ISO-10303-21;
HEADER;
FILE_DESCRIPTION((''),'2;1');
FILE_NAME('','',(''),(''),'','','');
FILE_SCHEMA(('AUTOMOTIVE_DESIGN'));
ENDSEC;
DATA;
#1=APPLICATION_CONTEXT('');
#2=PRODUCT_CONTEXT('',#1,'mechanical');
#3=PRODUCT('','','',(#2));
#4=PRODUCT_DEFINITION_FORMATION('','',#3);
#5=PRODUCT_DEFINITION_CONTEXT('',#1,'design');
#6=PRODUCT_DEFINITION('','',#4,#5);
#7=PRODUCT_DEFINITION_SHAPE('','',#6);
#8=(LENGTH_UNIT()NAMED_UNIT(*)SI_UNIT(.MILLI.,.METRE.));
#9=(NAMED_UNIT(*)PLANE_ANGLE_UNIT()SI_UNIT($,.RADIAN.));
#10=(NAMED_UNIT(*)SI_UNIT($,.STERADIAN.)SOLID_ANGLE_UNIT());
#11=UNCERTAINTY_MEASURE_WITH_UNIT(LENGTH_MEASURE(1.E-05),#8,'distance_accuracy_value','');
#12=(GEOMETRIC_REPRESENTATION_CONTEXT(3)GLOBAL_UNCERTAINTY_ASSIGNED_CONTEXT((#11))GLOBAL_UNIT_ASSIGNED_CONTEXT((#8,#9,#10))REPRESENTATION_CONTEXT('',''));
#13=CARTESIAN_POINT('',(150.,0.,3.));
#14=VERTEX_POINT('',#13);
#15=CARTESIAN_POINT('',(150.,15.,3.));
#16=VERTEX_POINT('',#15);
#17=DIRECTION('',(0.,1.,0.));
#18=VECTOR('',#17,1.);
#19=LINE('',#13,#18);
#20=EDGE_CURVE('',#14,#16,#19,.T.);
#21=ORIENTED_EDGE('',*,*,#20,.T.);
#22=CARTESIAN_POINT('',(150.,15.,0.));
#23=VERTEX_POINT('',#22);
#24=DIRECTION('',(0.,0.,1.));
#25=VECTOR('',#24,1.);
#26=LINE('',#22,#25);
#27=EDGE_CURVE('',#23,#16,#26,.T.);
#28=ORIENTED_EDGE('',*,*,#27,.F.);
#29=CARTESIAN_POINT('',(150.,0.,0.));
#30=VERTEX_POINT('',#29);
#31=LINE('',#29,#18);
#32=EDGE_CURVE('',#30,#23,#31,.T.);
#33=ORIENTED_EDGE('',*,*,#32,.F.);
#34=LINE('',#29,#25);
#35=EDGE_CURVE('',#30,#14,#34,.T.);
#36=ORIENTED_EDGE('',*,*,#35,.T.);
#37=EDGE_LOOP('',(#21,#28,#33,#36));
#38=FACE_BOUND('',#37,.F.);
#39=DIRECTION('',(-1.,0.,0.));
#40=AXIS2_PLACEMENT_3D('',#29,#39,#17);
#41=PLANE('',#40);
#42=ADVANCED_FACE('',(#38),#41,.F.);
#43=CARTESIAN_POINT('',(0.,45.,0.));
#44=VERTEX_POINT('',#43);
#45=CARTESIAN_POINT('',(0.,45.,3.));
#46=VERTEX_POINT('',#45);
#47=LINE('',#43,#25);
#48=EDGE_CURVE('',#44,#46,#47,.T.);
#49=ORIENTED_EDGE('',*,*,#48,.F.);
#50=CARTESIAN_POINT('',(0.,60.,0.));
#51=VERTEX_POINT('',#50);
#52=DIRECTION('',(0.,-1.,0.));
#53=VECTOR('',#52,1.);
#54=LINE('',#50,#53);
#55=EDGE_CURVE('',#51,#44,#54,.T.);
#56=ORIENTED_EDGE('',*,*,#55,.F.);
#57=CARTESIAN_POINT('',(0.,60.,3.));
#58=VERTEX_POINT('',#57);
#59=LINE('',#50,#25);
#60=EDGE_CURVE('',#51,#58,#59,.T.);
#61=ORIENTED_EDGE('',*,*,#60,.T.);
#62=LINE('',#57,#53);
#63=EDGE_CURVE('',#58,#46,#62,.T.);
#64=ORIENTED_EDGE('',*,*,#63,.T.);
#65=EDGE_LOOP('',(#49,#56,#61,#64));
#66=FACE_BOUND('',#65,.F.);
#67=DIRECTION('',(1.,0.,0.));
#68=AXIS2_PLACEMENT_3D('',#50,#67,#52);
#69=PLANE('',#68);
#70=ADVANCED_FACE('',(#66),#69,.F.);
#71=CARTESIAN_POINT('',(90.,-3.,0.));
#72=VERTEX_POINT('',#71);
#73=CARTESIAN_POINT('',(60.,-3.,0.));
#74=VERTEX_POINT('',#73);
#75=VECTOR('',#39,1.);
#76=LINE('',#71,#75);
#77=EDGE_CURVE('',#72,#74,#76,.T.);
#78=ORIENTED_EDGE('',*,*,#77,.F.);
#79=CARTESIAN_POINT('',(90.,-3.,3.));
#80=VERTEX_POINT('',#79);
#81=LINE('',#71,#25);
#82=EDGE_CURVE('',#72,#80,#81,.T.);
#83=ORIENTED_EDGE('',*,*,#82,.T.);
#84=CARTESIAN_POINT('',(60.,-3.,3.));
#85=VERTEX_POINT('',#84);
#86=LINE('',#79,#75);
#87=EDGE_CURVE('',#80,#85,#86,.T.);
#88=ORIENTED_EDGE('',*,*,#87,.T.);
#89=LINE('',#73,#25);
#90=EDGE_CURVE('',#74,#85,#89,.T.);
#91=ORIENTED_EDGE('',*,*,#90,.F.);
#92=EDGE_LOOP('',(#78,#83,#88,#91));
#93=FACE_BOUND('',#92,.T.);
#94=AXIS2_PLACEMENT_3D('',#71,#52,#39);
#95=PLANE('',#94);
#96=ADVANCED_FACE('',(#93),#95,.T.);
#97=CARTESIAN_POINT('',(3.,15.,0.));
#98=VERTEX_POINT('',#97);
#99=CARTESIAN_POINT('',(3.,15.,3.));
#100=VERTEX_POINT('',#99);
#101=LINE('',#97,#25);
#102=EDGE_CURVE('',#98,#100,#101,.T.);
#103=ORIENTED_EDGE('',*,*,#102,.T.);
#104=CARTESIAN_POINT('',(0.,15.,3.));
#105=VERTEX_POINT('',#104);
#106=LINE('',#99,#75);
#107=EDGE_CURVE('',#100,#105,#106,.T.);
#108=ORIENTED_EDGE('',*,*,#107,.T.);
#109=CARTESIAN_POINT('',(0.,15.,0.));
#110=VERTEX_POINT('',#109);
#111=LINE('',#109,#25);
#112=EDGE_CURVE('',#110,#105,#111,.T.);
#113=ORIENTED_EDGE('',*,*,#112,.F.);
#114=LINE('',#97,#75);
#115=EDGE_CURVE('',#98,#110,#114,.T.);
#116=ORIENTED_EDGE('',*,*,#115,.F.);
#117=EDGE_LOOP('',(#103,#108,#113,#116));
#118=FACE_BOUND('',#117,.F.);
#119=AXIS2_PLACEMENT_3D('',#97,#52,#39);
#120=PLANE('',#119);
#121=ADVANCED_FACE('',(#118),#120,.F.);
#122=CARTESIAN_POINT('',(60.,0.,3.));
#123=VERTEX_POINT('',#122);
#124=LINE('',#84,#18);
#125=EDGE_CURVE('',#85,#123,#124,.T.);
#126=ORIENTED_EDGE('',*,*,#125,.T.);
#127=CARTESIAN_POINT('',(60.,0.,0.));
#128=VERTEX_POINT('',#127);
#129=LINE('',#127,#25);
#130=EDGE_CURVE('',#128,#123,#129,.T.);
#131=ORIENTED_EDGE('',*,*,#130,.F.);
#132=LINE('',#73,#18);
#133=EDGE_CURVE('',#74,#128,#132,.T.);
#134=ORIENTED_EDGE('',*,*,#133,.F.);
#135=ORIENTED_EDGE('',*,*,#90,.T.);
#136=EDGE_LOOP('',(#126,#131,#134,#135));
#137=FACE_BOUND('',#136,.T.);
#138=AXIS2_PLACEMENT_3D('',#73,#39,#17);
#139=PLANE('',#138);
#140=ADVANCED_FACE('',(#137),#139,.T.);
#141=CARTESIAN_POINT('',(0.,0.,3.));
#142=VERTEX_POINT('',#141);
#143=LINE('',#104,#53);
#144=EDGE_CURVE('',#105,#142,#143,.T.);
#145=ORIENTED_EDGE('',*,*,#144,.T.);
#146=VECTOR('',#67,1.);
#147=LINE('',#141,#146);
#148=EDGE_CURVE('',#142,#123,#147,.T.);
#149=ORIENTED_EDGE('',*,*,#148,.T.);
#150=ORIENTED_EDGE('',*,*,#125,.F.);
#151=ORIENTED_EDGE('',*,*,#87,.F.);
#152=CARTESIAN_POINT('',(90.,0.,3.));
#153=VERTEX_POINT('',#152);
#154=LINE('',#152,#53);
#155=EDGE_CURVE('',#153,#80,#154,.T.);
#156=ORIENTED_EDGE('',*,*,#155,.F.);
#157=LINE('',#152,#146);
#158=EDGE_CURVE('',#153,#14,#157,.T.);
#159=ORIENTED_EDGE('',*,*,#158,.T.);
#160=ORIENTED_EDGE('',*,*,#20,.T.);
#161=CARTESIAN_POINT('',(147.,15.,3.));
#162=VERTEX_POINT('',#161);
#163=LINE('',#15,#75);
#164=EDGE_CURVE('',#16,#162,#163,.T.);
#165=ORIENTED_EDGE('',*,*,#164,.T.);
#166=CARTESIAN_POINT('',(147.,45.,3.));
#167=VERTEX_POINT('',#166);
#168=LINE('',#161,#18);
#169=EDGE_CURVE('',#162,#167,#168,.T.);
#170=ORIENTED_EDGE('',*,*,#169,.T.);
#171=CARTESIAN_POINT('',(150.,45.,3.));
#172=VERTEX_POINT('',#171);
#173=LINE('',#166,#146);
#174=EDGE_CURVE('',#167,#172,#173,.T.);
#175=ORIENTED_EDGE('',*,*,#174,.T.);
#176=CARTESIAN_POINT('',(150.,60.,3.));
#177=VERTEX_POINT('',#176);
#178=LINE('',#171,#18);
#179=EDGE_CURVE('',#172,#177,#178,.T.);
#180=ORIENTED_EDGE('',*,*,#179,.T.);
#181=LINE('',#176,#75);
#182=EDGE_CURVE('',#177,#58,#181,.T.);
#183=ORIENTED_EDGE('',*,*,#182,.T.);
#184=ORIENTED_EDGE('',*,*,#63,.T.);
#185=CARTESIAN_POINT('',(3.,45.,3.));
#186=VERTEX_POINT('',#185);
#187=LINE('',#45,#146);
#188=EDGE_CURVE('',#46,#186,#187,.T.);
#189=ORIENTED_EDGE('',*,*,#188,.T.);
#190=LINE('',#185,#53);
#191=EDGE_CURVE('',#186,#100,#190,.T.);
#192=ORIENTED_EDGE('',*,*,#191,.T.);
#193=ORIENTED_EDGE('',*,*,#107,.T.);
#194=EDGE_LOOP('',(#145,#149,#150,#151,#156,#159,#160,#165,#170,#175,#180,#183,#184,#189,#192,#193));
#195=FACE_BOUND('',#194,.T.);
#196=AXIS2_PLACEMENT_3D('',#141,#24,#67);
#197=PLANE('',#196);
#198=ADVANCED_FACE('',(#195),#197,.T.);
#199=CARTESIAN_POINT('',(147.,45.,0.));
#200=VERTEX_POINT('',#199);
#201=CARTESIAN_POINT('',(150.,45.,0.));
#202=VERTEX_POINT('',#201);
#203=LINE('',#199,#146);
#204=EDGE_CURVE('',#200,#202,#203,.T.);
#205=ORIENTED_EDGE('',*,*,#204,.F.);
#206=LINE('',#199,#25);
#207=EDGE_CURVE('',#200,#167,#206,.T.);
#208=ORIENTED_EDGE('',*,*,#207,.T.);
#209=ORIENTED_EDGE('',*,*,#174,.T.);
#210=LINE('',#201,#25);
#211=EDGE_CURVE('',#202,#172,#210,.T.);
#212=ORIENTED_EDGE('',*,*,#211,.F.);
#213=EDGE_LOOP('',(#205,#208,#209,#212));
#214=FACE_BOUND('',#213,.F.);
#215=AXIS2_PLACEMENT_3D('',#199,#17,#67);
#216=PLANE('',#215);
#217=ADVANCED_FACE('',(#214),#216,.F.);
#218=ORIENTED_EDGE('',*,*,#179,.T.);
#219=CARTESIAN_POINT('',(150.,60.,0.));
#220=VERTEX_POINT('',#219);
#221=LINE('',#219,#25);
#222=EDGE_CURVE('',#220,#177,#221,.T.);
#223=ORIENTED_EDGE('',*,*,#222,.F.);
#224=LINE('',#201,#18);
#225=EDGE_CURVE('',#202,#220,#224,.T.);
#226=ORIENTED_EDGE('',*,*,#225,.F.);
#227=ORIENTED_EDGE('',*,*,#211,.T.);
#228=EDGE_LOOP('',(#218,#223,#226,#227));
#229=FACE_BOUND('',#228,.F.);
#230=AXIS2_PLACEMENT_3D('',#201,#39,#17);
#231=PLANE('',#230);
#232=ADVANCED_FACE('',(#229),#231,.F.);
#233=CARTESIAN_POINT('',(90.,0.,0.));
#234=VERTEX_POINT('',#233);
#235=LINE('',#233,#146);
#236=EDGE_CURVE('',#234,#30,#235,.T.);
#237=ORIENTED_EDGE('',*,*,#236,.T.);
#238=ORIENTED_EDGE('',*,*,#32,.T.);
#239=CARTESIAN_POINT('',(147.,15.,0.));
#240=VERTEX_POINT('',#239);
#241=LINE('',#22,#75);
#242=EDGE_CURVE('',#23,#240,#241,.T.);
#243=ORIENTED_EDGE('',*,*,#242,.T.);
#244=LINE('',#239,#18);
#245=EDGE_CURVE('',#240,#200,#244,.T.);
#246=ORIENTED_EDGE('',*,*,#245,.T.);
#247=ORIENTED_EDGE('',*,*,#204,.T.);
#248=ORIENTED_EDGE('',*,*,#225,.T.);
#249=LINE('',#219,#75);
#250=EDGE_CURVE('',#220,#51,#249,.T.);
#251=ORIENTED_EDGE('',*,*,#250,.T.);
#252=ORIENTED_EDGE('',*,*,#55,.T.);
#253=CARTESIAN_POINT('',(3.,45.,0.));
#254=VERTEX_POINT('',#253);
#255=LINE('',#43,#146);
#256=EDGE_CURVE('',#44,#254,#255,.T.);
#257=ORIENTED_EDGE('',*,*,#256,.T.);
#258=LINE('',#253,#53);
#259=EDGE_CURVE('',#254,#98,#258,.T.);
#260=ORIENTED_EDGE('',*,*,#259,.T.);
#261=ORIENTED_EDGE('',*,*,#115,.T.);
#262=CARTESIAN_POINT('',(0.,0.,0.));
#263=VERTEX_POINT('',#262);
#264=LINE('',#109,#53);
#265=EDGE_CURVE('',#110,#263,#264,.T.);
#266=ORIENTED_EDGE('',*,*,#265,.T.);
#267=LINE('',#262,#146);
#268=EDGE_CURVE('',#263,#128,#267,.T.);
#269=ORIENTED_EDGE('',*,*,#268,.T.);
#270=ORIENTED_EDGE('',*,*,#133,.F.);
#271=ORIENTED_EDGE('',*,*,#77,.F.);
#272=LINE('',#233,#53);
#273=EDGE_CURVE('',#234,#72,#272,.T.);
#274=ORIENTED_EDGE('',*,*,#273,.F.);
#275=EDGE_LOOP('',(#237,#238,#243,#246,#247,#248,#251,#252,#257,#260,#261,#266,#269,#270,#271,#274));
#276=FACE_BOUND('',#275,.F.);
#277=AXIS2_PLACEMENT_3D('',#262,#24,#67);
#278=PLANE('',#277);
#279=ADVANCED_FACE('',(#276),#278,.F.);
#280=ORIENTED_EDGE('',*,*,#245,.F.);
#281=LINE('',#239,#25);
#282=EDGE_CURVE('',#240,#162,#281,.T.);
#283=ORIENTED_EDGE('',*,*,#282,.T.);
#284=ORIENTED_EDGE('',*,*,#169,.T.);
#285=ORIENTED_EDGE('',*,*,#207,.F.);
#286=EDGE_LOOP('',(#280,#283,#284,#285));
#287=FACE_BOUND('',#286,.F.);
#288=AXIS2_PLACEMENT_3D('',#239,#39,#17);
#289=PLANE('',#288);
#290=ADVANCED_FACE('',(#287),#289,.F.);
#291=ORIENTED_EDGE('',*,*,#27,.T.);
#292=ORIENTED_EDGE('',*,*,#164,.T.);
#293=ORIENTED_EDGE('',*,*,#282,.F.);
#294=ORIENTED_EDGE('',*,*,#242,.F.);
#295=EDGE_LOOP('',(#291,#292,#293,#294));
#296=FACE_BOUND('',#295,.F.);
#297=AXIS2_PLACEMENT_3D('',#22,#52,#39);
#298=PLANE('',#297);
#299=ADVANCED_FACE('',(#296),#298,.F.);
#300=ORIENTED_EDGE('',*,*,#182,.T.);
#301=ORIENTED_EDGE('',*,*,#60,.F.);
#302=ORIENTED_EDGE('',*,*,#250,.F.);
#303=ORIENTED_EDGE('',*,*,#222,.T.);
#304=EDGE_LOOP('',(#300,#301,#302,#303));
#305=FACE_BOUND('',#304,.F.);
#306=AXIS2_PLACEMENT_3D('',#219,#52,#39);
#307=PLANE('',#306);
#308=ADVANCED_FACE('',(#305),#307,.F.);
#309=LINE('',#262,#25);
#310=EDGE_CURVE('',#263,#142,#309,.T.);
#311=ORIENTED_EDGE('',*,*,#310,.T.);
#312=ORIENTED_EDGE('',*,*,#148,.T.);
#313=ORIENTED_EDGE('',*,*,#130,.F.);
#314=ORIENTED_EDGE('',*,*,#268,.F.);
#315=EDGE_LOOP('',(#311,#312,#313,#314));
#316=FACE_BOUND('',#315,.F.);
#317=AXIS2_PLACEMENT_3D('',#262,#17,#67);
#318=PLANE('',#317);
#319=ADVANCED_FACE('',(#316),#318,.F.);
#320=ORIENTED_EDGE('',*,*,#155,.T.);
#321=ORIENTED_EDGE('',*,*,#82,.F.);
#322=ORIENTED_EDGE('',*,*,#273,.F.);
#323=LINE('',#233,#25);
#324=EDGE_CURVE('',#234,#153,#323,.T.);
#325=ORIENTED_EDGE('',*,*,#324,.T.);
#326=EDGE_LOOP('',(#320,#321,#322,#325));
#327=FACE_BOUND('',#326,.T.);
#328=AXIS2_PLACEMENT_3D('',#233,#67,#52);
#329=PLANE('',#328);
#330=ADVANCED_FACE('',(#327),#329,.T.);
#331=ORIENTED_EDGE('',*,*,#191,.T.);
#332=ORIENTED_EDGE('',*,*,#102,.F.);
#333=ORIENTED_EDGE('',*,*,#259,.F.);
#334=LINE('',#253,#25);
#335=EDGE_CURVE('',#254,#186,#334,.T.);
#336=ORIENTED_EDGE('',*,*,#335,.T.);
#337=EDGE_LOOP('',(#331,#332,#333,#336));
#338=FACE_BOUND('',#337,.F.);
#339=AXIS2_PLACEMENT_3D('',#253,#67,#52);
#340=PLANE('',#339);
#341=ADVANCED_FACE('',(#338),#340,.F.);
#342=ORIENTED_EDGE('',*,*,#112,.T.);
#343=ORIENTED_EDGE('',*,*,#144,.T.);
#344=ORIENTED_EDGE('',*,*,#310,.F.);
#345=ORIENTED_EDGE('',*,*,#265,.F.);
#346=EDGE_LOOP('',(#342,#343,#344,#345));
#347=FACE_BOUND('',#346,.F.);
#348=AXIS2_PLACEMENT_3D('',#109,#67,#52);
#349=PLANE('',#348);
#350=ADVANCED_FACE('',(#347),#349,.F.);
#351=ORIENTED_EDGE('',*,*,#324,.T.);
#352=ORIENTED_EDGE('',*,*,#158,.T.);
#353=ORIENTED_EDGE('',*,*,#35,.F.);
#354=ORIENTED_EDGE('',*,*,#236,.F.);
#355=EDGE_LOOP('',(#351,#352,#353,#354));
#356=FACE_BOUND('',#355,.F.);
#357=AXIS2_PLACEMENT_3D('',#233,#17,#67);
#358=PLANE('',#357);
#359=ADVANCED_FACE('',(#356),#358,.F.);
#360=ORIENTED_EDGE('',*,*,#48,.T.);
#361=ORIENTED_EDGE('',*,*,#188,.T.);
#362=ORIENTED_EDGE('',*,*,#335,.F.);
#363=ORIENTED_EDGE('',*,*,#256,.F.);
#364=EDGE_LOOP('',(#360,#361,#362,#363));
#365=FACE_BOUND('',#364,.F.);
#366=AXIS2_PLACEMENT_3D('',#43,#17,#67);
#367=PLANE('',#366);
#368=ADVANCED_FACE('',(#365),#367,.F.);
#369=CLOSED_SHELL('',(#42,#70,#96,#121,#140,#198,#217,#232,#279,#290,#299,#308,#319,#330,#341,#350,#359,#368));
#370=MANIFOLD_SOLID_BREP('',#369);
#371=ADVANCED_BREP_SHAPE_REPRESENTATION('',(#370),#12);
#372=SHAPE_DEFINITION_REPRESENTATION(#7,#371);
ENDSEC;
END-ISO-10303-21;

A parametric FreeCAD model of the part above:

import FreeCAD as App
import Part
import Sketcher
from FreeCAD import Vector
Q = App.Units.Quantity


def add_polygon(sketch, points):
    """Adds a closed chain of lines whose ends are joined by coincident constraints."""
    first, n = sketch.GeometryCount, len(points)
    for a, b in zip(points, points[1:] + points[:1]):
        sketch.addGeometry(Part.LineSegment(App.Vector(*a, 0), App.Vector(*b, 0)), False)
    for i in range(n):
        sketch.addConstraint(Sketcher.Constraint("Coincident", first + i, 2, first + (i + 1) % n, 1))

doc = App.newDocument("Part")
params = doc.addObject("Spreadsheet::Sheet", "Params")
for row, (alias, value) in enumerate([
    ("sketch1_width", "60 mm"),
    ("sketch1_width2", "3 mm"),
    ("sketch1_width3", "150 mm"),
    ("sketch1_height", "15 mm"),
    ("pad1_length", "3 mm"),
], start=1):
    params.set(f"A{row}", alias)
    params.set(f"B{row}", "=" + value)
    params.setAlias(f"B{row}", alias)

body = doc.addObject("PartDesign::Body", "Body")

# Sketch on XY plane
sketch1 = body.newObject("Sketcher::SketchObject", "Sketch")
sketch1.AttachmentSupport = (doc.getObject("XY_Plane"), [""])
sketch1.MapMode = "FlatFace"
add_polygon(sketch1, [(90, -3), (90, 0), (150, 0), (150, 15), (147, 15), (147, 45), (150, 45), (150, 60), (0, 60), (0, 45), (3, 45), (3, 15), (0, 15), (0, 0), (60, 0), (60, -3)])  # lines 0-15
sketch1.addConstraint(Sketcher.Constraint("Vertical", 0))
sketch1.addConstraint(Sketcher.Constraint("Horizontal", 1))
sketch1.addConstraint(Sketcher.Constraint("Vertical", 2))
sketch1.addConstraint(Sketcher.Constraint("Horizontal", 3))
sketch1.addConstraint(Sketcher.Constraint("Vertical", 4))
sketch1.addConstraint(Sketcher.Constraint("Horizontal", 5))
sketch1.addConstraint(Sketcher.Constraint("Vertical", 6))
sketch1.addConstraint(Sketcher.Constraint("Horizontal", 7))
sketch1.addConstraint(Sketcher.Constraint("Vertical", 8))
sketch1.addConstraint(Sketcher.Constraint("Horizontal", 9))
sketch1.addConstraint(Sketcher.Constraint("Vertical", 10))
sketch1.addConstraint(Sketcher.Constraint("Horizontal", 11))
sketch1.addConstraint(Sketcher.Constraint("Vertical", 12))
sketch1.addConstraint(Sketcher.Constraint("Horizontal", 13))
sketch1.addConstraint(Sketcher.Constraint("Vertical", 14))
sketch1.addConstraint(Sketcher.Constraint("Horizontal", 15))
sketch1.addConstraint(Sketcher.Constraint("Coincident", 12, 2, -1, 1))
sketch1.addConstraint(Sketcher.Constraint("PointOnObject", 0, 2, -1))
sketch1.addConstraint(Sketcher.Constraint("PointOnObject", 7, 2, -2))
sketch1.addConstraint(Sketcher.Constraint("Horizontal", 5, 2, 8, 2))
sketch1.addConstraint(Sketcher.Constraint("Horizontal", 3, 2, 10, 2))
sketch1.addConstraint(Sketcher.Constraint("Vertical", 2, 2, 5, 2))
sketch1.addConstraint(Sketcher.Constraint("Equal", 5, 9))
sketch1.addConstraint(Sketcher.Constraint("Equal", 1, 13))
sketch1.addConstraint(Sketcher.Constraint("Equal", 11, 0))
sketch1.addConstraint(Sketcher.Constraint("Equal", 15, 4))
sketch1.addConstraint(Sketcher.Constraint("Equal", 2, 6))
sketch1.addConstraint(Sketcher.Constraint("DistanceX", 1, 1, 1, 2, Q("60 mm")))
sketch1.addConstraint(Sketcher.Constraint("DistanceX", 3, 2, 3, 1, Q("3 mm")))
sketch1.addConstraint(Sketcher.Constraint("DistanceX", 7, 2, 7, 1, Q("150 mm")))
sketch1.addConstraint(Sketcher.Constraint("DistanceY", 2, 1, 2, 2, Q("15 mm")))
sketch1.setExpression("Constraints[43]", "Params.sketch1_width")
sketch1.setExpression("Constraints[44]", "Params.sketch1_width2")
sketch1.setExpression("Constraints[45]", "Params.sketch1_width3")
sketch1.setExpression("Constraints[46]", "Params.sketch1_height")
pad1 = body.newObject("PartDesign::Pad", "Pad")
pad1.Profile = sketch1
pad1.setExpression("Length", "Params.pad1_length")

doc.recompute()
